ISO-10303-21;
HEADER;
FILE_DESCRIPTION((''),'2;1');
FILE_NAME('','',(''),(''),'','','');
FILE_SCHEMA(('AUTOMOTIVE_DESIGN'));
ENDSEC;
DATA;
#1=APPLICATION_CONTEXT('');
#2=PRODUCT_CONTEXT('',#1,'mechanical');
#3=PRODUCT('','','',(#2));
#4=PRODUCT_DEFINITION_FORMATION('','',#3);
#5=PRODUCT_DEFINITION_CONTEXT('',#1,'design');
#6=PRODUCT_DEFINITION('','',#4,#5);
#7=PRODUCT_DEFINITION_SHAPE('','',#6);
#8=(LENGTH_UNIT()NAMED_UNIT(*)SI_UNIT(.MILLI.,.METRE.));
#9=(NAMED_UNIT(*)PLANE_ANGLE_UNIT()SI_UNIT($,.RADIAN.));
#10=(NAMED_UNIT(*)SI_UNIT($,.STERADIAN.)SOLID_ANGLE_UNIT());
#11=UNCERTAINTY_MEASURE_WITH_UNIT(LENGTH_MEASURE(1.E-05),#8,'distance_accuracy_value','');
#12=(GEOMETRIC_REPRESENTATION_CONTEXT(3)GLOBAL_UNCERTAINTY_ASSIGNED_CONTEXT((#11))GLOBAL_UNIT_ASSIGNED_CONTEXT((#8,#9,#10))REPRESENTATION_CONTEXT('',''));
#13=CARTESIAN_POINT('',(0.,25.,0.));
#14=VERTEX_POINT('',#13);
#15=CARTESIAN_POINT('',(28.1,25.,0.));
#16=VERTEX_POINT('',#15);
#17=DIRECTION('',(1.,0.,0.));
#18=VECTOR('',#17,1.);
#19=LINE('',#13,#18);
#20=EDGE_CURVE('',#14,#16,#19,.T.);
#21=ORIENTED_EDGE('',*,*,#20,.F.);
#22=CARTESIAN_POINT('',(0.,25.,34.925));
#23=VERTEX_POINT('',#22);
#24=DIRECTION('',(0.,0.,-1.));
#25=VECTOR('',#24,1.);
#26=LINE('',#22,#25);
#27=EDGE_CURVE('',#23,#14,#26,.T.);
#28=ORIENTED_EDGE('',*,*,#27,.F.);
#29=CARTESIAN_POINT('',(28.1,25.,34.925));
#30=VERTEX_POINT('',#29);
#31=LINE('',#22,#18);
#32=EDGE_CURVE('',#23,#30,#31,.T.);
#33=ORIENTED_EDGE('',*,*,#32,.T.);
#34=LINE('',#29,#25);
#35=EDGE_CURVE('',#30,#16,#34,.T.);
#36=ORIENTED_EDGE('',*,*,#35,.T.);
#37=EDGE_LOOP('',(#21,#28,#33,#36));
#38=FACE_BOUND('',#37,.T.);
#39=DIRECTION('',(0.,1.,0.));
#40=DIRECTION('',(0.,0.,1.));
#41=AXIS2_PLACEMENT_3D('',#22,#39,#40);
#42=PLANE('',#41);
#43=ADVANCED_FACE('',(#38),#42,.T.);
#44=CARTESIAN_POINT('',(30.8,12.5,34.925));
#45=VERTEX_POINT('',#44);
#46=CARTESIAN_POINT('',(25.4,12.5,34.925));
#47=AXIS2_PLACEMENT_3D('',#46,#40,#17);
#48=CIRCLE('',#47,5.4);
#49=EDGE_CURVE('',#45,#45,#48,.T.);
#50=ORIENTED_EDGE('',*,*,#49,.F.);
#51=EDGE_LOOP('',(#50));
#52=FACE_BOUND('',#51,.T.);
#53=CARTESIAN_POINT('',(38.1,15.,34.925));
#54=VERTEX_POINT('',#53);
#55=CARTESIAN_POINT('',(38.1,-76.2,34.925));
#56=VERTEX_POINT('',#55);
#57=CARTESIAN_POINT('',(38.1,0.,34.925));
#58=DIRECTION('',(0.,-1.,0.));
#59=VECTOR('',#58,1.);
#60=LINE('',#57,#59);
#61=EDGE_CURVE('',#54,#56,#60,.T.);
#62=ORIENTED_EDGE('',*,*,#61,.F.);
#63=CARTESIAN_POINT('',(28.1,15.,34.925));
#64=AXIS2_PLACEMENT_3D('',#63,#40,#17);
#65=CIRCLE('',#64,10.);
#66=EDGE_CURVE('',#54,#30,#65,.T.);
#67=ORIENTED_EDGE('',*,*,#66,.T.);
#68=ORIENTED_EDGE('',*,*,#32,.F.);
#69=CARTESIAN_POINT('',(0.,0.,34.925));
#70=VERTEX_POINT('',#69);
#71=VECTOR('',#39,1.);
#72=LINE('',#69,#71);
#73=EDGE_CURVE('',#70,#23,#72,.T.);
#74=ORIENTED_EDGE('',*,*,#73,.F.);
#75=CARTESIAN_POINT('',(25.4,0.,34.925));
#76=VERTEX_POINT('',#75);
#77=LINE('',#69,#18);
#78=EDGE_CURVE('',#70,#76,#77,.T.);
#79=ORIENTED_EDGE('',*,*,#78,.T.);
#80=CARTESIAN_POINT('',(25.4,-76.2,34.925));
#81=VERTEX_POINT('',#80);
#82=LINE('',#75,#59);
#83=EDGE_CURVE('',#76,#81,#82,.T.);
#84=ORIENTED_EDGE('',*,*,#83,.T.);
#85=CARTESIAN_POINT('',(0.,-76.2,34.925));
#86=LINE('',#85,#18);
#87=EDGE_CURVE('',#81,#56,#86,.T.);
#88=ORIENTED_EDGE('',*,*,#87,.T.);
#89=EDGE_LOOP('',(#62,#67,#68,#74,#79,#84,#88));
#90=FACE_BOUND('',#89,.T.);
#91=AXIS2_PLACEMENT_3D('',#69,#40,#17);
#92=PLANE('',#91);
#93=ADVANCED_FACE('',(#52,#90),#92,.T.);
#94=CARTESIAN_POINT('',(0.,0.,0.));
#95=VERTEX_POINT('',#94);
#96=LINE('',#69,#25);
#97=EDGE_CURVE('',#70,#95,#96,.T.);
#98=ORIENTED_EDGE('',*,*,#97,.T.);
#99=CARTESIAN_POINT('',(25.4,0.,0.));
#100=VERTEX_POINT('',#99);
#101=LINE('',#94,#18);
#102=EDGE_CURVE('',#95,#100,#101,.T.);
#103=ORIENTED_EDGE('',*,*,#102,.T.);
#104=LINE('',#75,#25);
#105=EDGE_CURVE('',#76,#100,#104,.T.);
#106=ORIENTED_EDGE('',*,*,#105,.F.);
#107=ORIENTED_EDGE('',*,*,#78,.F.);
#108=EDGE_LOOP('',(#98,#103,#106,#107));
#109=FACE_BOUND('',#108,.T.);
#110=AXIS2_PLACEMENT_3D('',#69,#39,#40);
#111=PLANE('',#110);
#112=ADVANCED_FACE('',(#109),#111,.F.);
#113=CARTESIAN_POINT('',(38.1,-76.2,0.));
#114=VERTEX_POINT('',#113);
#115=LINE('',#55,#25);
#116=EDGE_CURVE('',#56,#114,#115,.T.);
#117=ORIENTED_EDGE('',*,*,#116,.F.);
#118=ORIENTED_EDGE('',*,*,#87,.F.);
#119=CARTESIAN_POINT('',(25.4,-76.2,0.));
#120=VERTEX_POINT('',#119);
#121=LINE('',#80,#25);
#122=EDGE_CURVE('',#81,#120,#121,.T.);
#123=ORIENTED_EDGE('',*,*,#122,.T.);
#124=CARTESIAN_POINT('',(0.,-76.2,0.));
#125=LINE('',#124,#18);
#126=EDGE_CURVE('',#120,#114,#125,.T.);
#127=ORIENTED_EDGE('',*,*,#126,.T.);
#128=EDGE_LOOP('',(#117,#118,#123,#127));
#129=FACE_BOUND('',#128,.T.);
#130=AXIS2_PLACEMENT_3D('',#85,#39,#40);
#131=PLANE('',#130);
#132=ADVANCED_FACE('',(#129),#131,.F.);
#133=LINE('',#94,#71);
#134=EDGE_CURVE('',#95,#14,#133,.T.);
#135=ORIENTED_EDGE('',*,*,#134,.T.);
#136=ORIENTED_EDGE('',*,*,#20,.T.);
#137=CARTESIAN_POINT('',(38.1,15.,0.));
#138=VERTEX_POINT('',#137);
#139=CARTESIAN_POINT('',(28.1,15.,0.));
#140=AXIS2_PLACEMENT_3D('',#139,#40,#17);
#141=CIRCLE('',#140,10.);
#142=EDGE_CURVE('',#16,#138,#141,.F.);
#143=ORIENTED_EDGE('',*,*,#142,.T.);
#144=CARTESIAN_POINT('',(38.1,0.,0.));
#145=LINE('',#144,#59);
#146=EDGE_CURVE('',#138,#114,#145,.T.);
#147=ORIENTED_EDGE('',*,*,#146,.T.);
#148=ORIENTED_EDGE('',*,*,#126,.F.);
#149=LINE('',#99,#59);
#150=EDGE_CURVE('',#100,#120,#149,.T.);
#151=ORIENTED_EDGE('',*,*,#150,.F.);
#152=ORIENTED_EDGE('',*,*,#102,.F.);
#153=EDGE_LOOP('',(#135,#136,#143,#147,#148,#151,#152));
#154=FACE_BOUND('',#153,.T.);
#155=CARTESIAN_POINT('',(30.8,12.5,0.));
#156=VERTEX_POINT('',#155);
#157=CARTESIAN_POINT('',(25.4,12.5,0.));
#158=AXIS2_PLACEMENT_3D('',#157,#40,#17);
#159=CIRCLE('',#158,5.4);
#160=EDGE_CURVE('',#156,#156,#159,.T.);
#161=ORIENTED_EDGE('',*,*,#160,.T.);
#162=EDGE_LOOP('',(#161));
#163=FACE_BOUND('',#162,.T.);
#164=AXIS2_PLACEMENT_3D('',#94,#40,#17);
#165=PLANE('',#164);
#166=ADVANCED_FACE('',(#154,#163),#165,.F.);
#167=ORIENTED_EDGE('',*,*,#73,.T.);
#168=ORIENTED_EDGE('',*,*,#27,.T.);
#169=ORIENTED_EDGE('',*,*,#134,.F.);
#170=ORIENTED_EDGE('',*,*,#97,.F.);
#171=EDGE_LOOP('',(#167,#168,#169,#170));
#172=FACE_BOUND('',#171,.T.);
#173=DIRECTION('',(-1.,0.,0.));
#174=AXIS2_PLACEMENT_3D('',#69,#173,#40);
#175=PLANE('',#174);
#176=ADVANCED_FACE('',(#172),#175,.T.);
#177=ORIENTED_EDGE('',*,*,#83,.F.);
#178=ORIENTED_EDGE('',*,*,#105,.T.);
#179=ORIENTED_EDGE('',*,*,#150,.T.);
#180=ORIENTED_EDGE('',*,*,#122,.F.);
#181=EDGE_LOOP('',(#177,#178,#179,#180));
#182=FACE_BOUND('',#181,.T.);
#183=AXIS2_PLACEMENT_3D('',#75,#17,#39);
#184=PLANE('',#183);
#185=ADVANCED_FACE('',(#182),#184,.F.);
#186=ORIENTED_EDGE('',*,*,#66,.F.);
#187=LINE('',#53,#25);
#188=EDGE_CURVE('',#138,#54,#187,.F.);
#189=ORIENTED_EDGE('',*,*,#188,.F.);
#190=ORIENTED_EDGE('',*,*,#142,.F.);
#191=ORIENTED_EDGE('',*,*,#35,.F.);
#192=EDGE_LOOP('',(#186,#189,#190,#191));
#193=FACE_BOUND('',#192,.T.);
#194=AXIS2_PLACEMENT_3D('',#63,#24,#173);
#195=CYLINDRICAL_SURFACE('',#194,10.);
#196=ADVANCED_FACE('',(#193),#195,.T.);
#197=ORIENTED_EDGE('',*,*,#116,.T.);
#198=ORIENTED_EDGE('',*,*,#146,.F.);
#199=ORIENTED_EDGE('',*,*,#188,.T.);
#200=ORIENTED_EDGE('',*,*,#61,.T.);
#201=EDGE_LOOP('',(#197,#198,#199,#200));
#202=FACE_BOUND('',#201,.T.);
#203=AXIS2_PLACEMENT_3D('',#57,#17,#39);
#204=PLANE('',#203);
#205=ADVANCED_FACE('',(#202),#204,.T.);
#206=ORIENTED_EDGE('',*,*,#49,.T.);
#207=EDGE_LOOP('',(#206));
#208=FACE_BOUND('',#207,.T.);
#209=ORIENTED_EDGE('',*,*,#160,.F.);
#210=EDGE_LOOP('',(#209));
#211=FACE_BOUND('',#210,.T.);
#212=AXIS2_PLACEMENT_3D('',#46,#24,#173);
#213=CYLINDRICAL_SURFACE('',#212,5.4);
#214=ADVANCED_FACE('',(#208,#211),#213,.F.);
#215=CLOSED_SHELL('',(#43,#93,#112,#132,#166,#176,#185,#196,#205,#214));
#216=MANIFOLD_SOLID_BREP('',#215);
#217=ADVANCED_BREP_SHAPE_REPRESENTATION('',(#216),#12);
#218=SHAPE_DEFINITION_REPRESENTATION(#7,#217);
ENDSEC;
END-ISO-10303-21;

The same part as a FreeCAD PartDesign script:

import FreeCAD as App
import Part
import Sketcher
from FreeCAD import Vector
Q = App.Units.Quantity


def edges_at(feature, points):
    """Names of the edges that pass closest to the given points."""
    edges = feature.Shape.Edges
    near = lambda p: min(range(len(edges)), key=lambda i: edges[i].distToShape(Part.Vertex(*p))[0])
    return sorted({f"Edge{near(p) + 1}" for p in points})


def add_polygon(sketch, points):
    """Adds a closed chain of lines whose ends are joined by coincident constraints."""
    first, n = sketch.GeometryCount, len(points)
    for a, b in zip(points, points[1:] + points[:1]):
        sketch.addGeometry(Part.LineSegment(App.Vector(*a, 0), App.Vector(*b, 0)), False)
    for i in range(n):
        sketch.addConstraint(Sketcher.Constraint("Coincident", first + i, 2, first + (i + 1) % n, 1))

doc = App.newDocument("Part")
body = doc.addObject("PartDesign::Body", "Body")

sketch1 = doc.addObject("Sketcher::SketchObject", "Sketch")
body.addObject(sketch1)
sketch1.AttachmentSupport = (doc.XY_Plane, [""])
sketch1.MapMode = "FlatFace"
add_polygon(sketch1, [(0, 0), (25, 0), (25, -76), (38, -76), (38, 25), (0, 25)])
sketch1.addGeometry(Part.Circle(Vector(25, 12, 0), Vector(0, 0, 1), 5), False)
sketch1.addConstraint([
    Sketcher.Constraint("Horizontal", 0),
    Sketcher.Constraint("Vertical", 1),
    Sketcher.Constraint("Horizontal", 2),
    Sketcher.Constraint("Vertical", 3),
    Sketcher.Constraint("Horizontal", 4),
    Sketcher.Constraint("Vertical", 5),
    Sketcher.Constraint("Coincident", 5, 2, -1, 1),
    Sketcher.Constraint("Vertical", 6, 3, 0, 2),
    Sketcher.Constraint("DistanceX", 0, 1, 0, 2, Q("1 in")),
    Sketcher.Constraint("DistanceY", 1, 2, 1, 1, Q("3 in")),
    Sketcher.Constraint("DistanceX", 2, 1, 2, 2, Q("0.5 in")),
    Sketcher.Constraint("Diameter", 6, Q("10.8 mm")),
    Sketcher.Constraint("DistanceY", 3, 1, 3, 2, Q("101.2 mm")),
    Sketcher.Constraint("DistanceY", -1, 1, 6, 3, Q("12.5 mm")),
])
pad1 = doc.addObject("PartDesign::Pad", "Pad")
body.addObject(pad1)
pad1.Profile = sketch1
pad1.Length = Q("1.375 in")
doc.recompute()

fillet = doc.addObject("PartDesign::Fillet", "Fillet")
body.addObject(fillet)
fillet.Base = (pad1, edges_at(pad1, [(38.1, 25, 17.462)]))
fillet.Radius = 10

doc.recompute()
